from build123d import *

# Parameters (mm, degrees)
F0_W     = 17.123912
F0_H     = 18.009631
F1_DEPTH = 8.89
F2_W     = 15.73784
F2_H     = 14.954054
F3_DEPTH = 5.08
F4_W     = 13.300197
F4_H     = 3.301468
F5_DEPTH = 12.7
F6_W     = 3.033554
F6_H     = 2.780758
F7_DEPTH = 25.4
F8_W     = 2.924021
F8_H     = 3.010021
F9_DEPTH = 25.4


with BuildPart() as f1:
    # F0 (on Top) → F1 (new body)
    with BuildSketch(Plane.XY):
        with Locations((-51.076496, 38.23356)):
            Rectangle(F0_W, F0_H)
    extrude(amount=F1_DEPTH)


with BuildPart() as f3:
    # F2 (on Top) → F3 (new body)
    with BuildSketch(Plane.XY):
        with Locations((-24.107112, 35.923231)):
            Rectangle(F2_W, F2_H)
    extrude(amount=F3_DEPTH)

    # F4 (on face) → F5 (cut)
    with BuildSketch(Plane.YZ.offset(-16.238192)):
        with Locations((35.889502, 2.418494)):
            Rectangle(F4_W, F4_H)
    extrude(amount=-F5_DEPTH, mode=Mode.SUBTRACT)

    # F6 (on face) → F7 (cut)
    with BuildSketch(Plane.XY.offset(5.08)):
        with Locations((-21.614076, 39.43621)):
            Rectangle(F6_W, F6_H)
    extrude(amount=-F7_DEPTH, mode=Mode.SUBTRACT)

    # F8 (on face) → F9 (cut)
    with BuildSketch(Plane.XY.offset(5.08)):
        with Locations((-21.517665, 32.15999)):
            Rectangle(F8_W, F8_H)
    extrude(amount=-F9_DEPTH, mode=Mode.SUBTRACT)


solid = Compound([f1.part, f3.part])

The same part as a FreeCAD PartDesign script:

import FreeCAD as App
import Part
import Sketcher

V = App.Vector
Q = App.Units.Quantity

doc = App.newDocument("Part")
body = doc.addObject("PartDesign::Body", "Body")

sketch1 = body.newObject("Sketcher::SketchObject", "Sketch")
sketch1.AttachmentSupport = (doc.getObject("XY_Plane"), [""])
sketch1.MapMode = "FlatFace"
sketch1.addGeometry([
    Part.LineSegment(V(-59.638452, 47.238375, 0), V(-59.638452, 29.228745, 0)),
    Part.LineSegment(V(-59.638452, 29.228745, 0), V(-42.51454, 29.228745, 0)),
    Part.LineSegment(V(-42.51454, 29.228745, 0), V(-42.51454, 47.238375, 0)),
    Part.LineSegment(V(-42.51454, 47.238375, 0), V(-59.638452, 47.238375, 0)),
], False)
sketch1.addConstraint([
    Sketcher.Constraint("Coincident", 0, 2, 1, 1),
    Sketcher.Constraint("Coincident", 1, 2, 2, 1),
    Sketcher.Constraint("Coincident", 2, 2, 3, 1),
    Sketcher.Constraint("Coincident", 3, 2, 0, 1),
    Sketcher.Constraint("Vertical", 0),
    Sketcher.Constraint("Horizontal", 1),
    Sketcher.Constraint("Vertical", 2),
    Sketcher.Constraint("Horizontal", 3),
    Sketcher.Constraint("DistanceY", 0, 2, 0, 1, Q("18.009631 mm")),
    Sketcher.Constraint("DistanceX", 1, 1, 1, 2, Q("17.123912 mm")),
    Sketcher.Constraint("DistanceX", 1, 2, -1, 1, Q("42.51454 mm")),
    Sketcher.Constraint("DistanceY", -1, 1, 0, 2, Q("29.228745 mm")),
])
pad1 = body.newObject("PartDesign::Pad", "Pad")
pad1.Profile = sketch1
pad1.Length = Q("0.35 in")
body2 = doc.addObject("PartDesign::Body", "Body001")

sketch2 = body2.newObject("Sketcher::SketchObject", "Sketch001")
sketch2.AttachmentSupport = (doc.getObject("XY_Plane001"), [""])
sketch2.MapMode = "FlatFace"
sketch2.addGeometry([
    Part.LineSegment(V(-31.976032, 43.400258, 0), V(-31.976032, 28.446204, 0)),
    Part.LineSegment(V(-31.976032, 28.446204, 0), V(-16.238192, 28.446204, 0)),
    Part.LineSegment(V(-16.238192, 28.446204, 0), V(-16.238192, 43.400258, 0)),
    Part.LineSegment(V(-16.238192, 43.400258, 0), V(-31.976032, 43.400258, 0)),
], False)
sketch2.addConstraint([
    Sketcher.Constraint("Coincident", 0, 2, 1, 1),
    Sketcher.Constraint("Coincident", 1, 2, 2, 1),
    Sketcher.Constraint("Coincident", 2, 2, 3, 1),
    Sketcher.Constraint("Coincident", 3, 2, 0, 1),
    Sketcher.Constraint("Vertical", 0),
    Sketcher.Constraint("Horizontal", 1),
    Sketcher.Constraint("Vertical", 2),
    Sketcher.Constraint("Horizontal", 3),
    Sketcher.Constraint("DistanceX", 1, 1, 1, 2, Q("0.6196 in")),
    Sketcher.Constraint("DistanceY", 0, 2, 0, 1, Q("14.954054 mm")),
    Sketcher.Constraint("DistanceX", 0, 2, -1, 1, Q("31.976032 mm")),
    Sketcher.Constraint("DistanceY", -1, 1, 0, 2, Q("28.446204 mm")),
])
pad2 = body2.newObject("PartDesign::Pad", "Pad001")
pad2.Profile = sketch2
pad2.Length = Q("0.2 in")

sketch3 = body2.newObject("Sketcher::SketchObject", "Sketch002")
sketch3.AttachmentSupport = (doc.getObject("YZ_Plane001"), [""])
sketch3.MapMode = "FlatFace"
sketch3.AttachmentOffset = App.Placement(V(0, 0, -16.238192), App.Rotation())
sketch3.addGeometry([
    Part.LineSegment(V(29.239404, 4.069228, 0), V(29.239404, 0.76776, 0)),
    Part.LineSegment(V(29.239404, 0.76776, 0), V(42.5396, 0.76776, 0)),
    Part.LineSegment(V(42.5396, 0.76776, 0), V(42.5396, 4.069228, 0)),
    Part.LineSegment(V(42.5396, 4.069228, 0), V(29.239404, 4.069228, 0)),
], False)
sketch3.addConstraint([
    Sketcher.Constraint("Coincident", 0, 2, 1, 1),
    Sketcher.Constraint("Coincident", 1, 2, 2, 1),
    Sketcher.Constraint("Coincident", 2, 2, 3, 1),
    Sketcher.Constraint("Coincident", 3, 2, 0, 1),
    Sketcher.Constraint("Vertical", 0),
    Sketcher.Constraint("Horizontal", 1),
    Sketcher.Constraint("Vertical", 2),
    Sketcher.Constraint("Horizontal", 3),
    Sketcher.Constraint("DistanceX", -1, 1, 1, 2, Q("42.5396 mm")),
    Sketcher.Constraint("DistanceX", 1, 1, 1, 2, Q("13.300197 mm")),
    Sketcher.Constraint("DistanceY", 0, 2, 0, 1, Q("3.301468 mm")),
    Sketcher.Constraint("DistanceY", -1, 1, 0, 2, Q("0.76776 mm")),
])
pocket1 = body2.newObject("PartDesign::Pocket", "Pocket")
pocket1.Profile = sketch3
pocket1.Length = Q("0.5 in")

sketch4 = body2.newObject("Sketcher::SketchObject", "Sketch003")
sketch4.AttachmentSupport = (doc.getObject("XY_Plane001"), [""])
sketch4.MapMode = "FlatFace"
sketch4.AttachmentOffset = App.Placement(V(0, 0, 0.2 * 25.4), App.Rotation())
sketch4.addGeometry([
    Part.LineSegment(V(-23.130853, 40.826589, 0), V(-23.130853, 38.045831, 0)),
    Part.LineSegment(V(-23.130853, 38.045831, 0), V(-20.097299, 38.045831, 0)),
    Part.LineSegment(V(-20.097299, 38.045831, 0), V(-20.097299, 40.826589, 0)),
    Part.LineSegment(V(-20.097299, 40.826589, 0), V(-23.130853, 40.826589, 0)),
], False)
sketch4.addConstraint([
    Sketcher.Constraint("Coincident", 0, 2, 1, 1),
    Sketcher.Constraint("Coincident", 1, 2, 2, 1),
    Sketcher.Constraint("Coincident", 2, 2, 3, 1),
    Sketcher.Constraint("Coincident", 3, 2, 0, 1),
    Sketcher.Constraint("Vertical", 0),
    Sketcher.Constraint("Horizontal", 1),
    Sketcher.Constraint("Vertical", 2),
    Sketcher.Constraint("Horizontal", 3),
    Sketcher.Constraint("DistanceX", 1, 2, -1, 1, Q("20.097299 mm")),
    Sketcher.Constraint("DistanceX", 1, 1, 1, 2, Q("3.033554 mm")),
    Sketcher.Constraint("DistanceY", 0, 2, 0, 1, Q("2.780758 mm")),
    Sketcher.Constraint("DistanceY", -1, 1, 0, 2, Q("38.045831 mm")),
])
pocket2 = body2.newObject("PartDesign::Pocket", "Pocket001")
pocket2.Profile = sketch4
pocket2.Length = Q("1 in")

sketch5 = body2.newObject("Sketcher::SketchObject", "Sketch004")
sketch5.AttachmentSupport = (doc.getObject("XY_Plane001"), [""])
sketch5.MapMode = "FlatFace"
sketch5.AttachmentOffset = App.Placement(V(0, 0, 0.2 * 25.4), App.Rotation())
sketch5.addGeometry([
    Part.LineSegment(V(-22.979675, 33.665, 0), V(-22.979675, 30.654979, 0)),
    Part.LineSegment(V(-22.979675, 30.654979, 0), V(-20.055654, 30.654979, 0)),
    Part.LineSegment(V(-20.055654, 30.654979, 0), V(-20.055654, 33.665, 0)),
    Part.LineSegment(V(-20.055654, 33.665, 0), V(-22.979675, 33.665, 0)),
], False)
sketch5.addConstraint([
    Sketcher.Constraint("Coincident", 0, 2, 1, 1),
    Sketcher.Constraint("Coincident", 1, 2, 2, 1),
    Sketcher.Constraint("Coincident", 2, 2, 3, 1),
    Sketcher.Constraint("Coincident", 3, 2, 0, 1),
    Sketcher.Constraint("Vertical", 0),
    Sketcher.Constraint("Horizontal", 1),
    Sketcher.Constraint("Vertical", 2),
    Sketcher.Constraint("Horizontal", 3),
    Sketcher.Constraint("DistanceX", 1, 1, 1, 2, Q("2.924021 mm")),
    Sketcher.Constraint("DistanceY", 0, 2, 0, 1, Q("3.010021 mm")),
    Sketcher.Constraint("DistanceY", -1, 1, 2, 2, Q("33.665 mm")),
    Sketcher.Constraint("DistanceX", 0, 2, -1, 1, Q("22.979675 mm")),
])
pocket3 = body2.newObject("PartDesign::Pocket", "Pocket002")
pocket3.Profile = sketch5
pocket3.Length = Q("1 in")

doc.recompute()
